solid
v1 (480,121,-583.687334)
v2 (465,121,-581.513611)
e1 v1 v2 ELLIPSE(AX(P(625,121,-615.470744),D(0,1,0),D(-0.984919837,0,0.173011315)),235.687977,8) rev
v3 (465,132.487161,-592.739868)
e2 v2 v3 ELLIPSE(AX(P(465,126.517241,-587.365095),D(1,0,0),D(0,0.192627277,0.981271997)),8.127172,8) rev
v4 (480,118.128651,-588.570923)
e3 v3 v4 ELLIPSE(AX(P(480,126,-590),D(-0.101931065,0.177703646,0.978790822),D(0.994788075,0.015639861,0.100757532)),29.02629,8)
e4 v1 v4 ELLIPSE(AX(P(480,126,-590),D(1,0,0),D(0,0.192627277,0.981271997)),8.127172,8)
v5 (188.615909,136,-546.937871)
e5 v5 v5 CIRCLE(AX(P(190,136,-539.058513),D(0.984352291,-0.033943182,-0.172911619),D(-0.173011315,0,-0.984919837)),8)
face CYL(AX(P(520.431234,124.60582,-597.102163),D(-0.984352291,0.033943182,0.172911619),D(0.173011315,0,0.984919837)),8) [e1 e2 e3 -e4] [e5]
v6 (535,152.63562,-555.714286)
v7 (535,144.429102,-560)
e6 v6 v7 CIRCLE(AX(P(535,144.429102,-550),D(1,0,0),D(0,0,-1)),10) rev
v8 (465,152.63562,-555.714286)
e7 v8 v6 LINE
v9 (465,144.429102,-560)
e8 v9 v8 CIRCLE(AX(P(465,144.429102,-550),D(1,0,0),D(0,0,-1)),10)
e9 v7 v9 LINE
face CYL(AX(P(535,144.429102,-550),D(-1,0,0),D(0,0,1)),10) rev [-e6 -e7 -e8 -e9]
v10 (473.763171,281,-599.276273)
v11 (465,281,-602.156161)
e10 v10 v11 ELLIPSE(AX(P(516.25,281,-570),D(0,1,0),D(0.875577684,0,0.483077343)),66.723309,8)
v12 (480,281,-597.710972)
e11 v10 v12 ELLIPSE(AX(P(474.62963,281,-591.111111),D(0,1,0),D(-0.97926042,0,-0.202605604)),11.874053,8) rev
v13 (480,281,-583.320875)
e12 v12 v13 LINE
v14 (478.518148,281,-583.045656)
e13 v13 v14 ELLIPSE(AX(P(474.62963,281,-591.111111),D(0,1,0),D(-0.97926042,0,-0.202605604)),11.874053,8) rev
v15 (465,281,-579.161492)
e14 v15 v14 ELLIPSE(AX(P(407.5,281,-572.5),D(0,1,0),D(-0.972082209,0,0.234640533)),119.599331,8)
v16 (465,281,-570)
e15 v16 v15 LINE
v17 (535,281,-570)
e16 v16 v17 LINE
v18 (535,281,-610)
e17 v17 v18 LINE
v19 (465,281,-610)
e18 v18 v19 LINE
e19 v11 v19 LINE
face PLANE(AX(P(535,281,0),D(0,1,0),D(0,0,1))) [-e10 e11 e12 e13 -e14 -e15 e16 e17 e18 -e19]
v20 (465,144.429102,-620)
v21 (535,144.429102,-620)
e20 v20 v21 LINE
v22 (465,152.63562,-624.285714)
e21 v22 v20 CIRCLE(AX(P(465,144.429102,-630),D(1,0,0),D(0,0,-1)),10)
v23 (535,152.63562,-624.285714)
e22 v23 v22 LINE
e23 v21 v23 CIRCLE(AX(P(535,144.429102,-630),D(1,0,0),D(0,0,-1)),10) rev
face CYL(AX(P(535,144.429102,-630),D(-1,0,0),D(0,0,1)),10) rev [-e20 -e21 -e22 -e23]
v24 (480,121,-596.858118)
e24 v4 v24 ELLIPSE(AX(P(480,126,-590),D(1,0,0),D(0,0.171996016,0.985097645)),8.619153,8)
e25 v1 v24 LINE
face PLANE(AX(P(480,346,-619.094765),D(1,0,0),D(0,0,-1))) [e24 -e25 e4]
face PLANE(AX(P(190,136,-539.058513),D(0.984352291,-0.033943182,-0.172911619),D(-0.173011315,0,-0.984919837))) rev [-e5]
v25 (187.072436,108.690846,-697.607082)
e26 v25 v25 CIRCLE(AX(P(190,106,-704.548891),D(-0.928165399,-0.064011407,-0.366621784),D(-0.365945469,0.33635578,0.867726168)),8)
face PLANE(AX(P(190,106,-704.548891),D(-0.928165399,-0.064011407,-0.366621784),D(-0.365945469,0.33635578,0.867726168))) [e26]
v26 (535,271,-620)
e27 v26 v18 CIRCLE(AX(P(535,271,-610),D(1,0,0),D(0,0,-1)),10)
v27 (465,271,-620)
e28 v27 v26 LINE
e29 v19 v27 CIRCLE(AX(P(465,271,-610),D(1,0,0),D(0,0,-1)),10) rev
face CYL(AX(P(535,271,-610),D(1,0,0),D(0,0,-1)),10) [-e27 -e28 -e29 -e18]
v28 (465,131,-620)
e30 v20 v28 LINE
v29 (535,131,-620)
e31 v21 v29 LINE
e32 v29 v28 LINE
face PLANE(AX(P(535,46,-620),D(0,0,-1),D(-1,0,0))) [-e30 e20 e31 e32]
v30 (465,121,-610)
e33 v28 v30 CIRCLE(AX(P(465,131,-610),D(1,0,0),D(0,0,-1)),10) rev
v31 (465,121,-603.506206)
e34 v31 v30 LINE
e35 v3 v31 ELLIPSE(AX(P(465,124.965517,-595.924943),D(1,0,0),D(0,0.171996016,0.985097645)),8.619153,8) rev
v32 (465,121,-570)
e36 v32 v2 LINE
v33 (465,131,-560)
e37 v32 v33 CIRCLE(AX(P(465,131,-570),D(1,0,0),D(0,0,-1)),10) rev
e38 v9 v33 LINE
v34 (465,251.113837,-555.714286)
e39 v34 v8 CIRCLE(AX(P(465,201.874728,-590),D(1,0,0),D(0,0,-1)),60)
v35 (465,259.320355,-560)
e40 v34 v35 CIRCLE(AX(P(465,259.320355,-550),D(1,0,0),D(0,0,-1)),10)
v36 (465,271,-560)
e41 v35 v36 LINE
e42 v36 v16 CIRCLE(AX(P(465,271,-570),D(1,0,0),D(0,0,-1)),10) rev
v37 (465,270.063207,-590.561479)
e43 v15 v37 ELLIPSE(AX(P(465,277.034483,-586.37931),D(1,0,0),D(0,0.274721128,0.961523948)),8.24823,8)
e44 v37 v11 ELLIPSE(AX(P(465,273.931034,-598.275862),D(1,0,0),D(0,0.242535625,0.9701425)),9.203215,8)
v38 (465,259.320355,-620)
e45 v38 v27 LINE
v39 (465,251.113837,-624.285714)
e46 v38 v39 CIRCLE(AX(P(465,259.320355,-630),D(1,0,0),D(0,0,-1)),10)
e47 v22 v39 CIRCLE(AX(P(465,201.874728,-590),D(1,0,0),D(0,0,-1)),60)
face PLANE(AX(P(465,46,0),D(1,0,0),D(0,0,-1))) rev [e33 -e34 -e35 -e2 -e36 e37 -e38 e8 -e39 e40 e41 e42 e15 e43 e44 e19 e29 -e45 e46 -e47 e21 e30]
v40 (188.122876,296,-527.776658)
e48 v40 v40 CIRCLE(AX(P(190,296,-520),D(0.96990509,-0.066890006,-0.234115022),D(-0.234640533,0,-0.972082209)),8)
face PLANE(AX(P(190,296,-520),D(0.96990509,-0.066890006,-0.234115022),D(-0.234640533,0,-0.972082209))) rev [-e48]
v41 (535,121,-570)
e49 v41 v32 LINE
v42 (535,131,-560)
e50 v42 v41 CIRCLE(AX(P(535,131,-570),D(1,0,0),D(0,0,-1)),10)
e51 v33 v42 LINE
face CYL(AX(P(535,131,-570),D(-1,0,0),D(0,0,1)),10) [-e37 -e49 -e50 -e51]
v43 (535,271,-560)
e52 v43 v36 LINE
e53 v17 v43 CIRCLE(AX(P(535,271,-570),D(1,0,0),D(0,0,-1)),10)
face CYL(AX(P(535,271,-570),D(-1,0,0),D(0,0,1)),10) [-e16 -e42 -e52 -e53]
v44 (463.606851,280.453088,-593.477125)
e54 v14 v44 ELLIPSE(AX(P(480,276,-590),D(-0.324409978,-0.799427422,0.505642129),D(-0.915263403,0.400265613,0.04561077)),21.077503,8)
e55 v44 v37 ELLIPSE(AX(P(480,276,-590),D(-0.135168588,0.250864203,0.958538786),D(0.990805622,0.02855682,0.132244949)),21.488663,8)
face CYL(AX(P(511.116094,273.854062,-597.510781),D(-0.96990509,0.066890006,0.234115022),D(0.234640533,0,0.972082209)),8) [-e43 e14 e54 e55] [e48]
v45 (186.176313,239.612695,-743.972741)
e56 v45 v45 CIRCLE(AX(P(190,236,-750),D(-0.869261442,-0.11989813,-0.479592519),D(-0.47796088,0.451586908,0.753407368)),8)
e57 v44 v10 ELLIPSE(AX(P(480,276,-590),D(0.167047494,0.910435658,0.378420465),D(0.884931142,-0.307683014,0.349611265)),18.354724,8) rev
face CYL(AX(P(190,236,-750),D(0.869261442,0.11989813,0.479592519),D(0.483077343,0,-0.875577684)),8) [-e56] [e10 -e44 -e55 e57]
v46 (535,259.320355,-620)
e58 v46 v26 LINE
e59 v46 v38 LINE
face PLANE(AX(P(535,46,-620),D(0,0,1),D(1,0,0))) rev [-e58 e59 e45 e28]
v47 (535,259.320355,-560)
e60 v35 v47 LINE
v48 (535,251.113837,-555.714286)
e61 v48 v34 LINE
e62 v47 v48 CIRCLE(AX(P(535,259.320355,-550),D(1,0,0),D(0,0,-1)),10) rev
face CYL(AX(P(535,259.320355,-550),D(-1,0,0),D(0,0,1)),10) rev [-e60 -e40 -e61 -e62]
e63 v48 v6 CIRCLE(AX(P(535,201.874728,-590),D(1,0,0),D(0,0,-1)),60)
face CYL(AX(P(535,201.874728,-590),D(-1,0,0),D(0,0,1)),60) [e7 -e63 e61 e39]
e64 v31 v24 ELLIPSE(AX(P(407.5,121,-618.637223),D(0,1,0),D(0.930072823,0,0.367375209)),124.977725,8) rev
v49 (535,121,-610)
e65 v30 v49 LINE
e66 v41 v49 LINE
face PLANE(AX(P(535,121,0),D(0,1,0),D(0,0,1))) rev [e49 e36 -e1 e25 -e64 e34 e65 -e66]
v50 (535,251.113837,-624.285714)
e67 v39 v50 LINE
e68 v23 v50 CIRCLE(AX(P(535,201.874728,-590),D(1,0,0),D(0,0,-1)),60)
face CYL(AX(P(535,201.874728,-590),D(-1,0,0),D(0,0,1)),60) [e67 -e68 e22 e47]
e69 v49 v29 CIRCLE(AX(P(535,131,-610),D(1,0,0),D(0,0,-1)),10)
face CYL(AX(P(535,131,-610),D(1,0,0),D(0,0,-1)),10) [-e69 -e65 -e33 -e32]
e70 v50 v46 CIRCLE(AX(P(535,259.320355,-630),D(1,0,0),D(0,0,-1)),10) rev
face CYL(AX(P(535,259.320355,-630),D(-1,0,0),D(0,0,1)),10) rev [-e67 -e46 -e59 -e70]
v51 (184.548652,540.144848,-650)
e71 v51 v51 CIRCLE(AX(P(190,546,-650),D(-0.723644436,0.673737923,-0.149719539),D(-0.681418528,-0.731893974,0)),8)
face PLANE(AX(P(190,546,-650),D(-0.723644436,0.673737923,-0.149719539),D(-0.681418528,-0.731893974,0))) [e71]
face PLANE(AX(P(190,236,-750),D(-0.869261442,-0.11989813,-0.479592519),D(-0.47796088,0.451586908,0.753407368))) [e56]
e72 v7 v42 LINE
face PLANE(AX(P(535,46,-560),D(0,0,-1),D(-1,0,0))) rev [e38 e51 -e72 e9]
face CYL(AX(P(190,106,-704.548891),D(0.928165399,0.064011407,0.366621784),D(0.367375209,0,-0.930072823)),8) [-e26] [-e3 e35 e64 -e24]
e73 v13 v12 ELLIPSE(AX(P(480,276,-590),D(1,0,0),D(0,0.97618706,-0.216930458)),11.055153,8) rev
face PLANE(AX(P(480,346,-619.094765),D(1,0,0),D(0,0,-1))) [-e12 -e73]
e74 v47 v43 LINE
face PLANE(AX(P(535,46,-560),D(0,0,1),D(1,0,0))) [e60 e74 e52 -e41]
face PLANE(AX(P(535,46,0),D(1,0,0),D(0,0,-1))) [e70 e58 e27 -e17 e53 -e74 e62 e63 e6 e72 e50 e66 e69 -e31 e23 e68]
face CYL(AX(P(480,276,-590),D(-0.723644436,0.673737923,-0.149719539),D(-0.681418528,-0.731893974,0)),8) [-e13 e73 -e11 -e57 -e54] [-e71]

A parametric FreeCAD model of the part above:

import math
import FreeCAD as App
import Part
import Sketcher


def edges_at(feature, points):
    """Names of the edges that pass closest to the given points."""
    edges = feature.Shape.Edges
    near = lambda p: min(range(len(edges)), key=lambda i: edges[i].distToShape(Part.Vertex(*p))[0])
    return sorted({f"Edge{near(p) + 1}" for p in points})


def add_polygon(sketch, points):
    """Adds a closed chain of lines whose ends are joined by coincident constraints."""
    first, n = sketch.GeometryCount, len(points)
    for a, b in zip(points, points[1:] + points[:1]):
        sketch.addGeometry(Part.LineSegment(App.Vector(*a, 0), App.Vector(*b, 0)), False)
    for i in range(n):
        sketch.addConstraint(Sketcher.Constraint("Coincident", first + i, 2, first + (i + 1) % n, 1))

doc = App.newDocument("Part")
params = doc.addObject("Spreadsheet::Sheet", "Params")
for row, (alias, value) in enumerate([
    ("sketch1_diameter", "16 mm"),
    ("sketch3_diameter", "16 mm"),
    ("sketch5_diameter", "16 mm"),
    ("sketch7_width", "50 mm"),
    ("pad1_length", "300 mm"),
    ("sketch8_radius", "60 mm"),
    ("sketch8_height", "60 mm"),
    ("pad2_length", "70 mm"),
    ("fillet_radius", "10 mm"),
], start=1):
    params.set(f"A{row}", alias)
    params.set(f"B{row}", "=" + value)
    params.setAlias(f"B{row}", alias)

body = doc.addObject("PartDesign::Body", "Body")

sketch1 = body.newObject("Sketcher::SketchObject", "Sketch")
sketch1.Placement = App.Placement(App.Vector(190, 250, -520), App.Rotation(App.Vector(0.234640533, 0, 0.972082209), App.Vector(-0.065022585, -0.997760356, 0.015695107), App.Vector(0.96990509, -0.066890006, -0.234115022), "ZXY"))
sketch1.addGeometry(Part.Circle(App.Vector(0, 0, 0), App.Vector(0, 0, 1), 8), False)
sketch1.addConstraint([
    Sketcher.Constraint("Coincident", 0, 3, -1, 1),
    Sketcher.Constraint("Diameter", 0, 16.0),
])
sketch1.setExpression("Constraints[1]", "Params.sketch1_diameter")

sketch2 = body.newObject("Sketcher::SketchObject", "Sketch001")
sketch2.Placement = App.Placement(App.Vector(2.17172, 362.134281, -94.469813), App.Rotation(App.Vector(0, -0.252421897, -0.967617272), App.Vector(0.999983164, -0.005614798, 0.00146473), App.Vector(-0.005802705, -0.967600982, 0.252417647), "ZXY"))
sketch2.addGeometry([
    Part.LineSegment(App.Vector(440.055507, 187.831442, 0), App.Vector(512.837154, 477.836325, 0)),
    Part.LineSegment(App.Vector(512.837154, 477.836325, 0), App.Vector(677.752793, 187.831442, 0)),
], False)
sketch2.addConstraint([
    Sketcher.Constraint("Coincident", 0, 2, 1, 1),
    Sketcher.Constraint("Horizontal", 0, 1, 1, 2),
    Sketcher.Constraint("DistanceX", 0, 2, 1, 2, 164.915639),
    Sketcher.Constraint("Distance", 0, 298.998328),
    Sketcher.Constraint("Distance", 1, 333.616546),
    Sketcher.Constraint("DistanceX", -1, 1, 0, 1, 440.055507),
    Sketcher.Constraint("DistanceY", -1, 1, 0, 1, 187.831442),
])
doc.recompute()

additivepipe = body.newObject("PartDesign::AdditivePipe", "AdditivePipe")
additivepipe.Profile = sketch1
additivepipe.Spine = (sketch2, ["Edge1", "Edge2"])
additivepipe.Transition = "Right corner"

sketch3 = body.newObject("Sketcher::SketchObject", "Sketch002")
sketch3.Placement = App.Placement(App.Vector(480, 230, -590), App.Rotation(App.Vector(-0.681418528, -0.731893974, 0), App.Vector(-0.109578828, 0.102021668, 0.988728506), App.Vector(-0.723644436, 0.673737923, -0.149719539), "ZXY"))
sketch3.addGeometry(Part.Circle(App.Vector(0, 0, 0), App.Vector(0, 0, 1), 8), False)
sketch3.addConstraint([
    Sketcher.Constraint("Coincident", 0, 3, -1, 1),
    Sketcher.Constraint("Diameter", 0, 16.0),
])
sketch3.setExpression("Constraints[1]", "Params.sketch3_diameter")

sketch4 = body.newObject("Sketcher::SketchObject", "Sketch003")
sketch4.Placement = App.Placement(App.Vector(337.585987, 362.592357, 0), App.Rotation(App.Vector(-0.731893974, 0.681418528, 0), App.Vector(0, 0, 0.999999999), App.Vector(0.681418528, 0.731893974, 0), "ZXY"))
sketch4.addGeometry(Part.LineSegment(App.Vector(-194.582846, -589.999999, 0), App.Vector(201.649409, -649.999999, 0)), False)
sketch4.addConstraint([
    Sketcher.Constraint("DistanceY", 0, 1, -1, 1, 589.999999),
    Sketcher.Constraint("DistanceY", 0, 2, -1, 1, 649.999999),
    Sketcher.Constraint("DistanceX", -1, 1, 0, 2, 201.649409),
    Sketcher.Constraint("Distance", 0, 400.749298),
])
doc.recompute()

additivepipe2 = body.newObject("PartDesign::AdditivePipe", "AdditivePipe001")
additivepipe2.Profile = sketch3
additivepipe2.Spine = (sketch4, ["Edge1"])
body2 = doc.addObject("PartDesign::Body", "Body001")

sketch5 = body2.newObject("Sketcher::SketchObject", "Sketch004")
sketch5.Placement = App.Placement(App.Vector(190, 60, -704.548891), App.Rotation(App.Vector(-0.367375209, 0, 0.930072823), App.Vector(0.05953527, -0.997949167, 0.023516204), App.Vector(0.928165399, 0.064011407, 0.366621784), "ZXY"))
sketch5.addGeometry(Part.Circle(App.Vector(0, 0, 0), App.Vector(0, 0, 1), 8), False)
sketch5.addConstraint([
    Sketcher.Constraint("Coincident", 0, 3, -1, 1),
    Sketcher.Constraint("Diameter", 0, 16.0),
])
sketch5.setExpression("Constraints[1]", "Params.sketch5_diameter")

sketch6 = body2.newObject("Sketcher::SketchObject", "Sketch005")
sketch6.Placement = App.Placement(App.Vector(0.480939, 182.231842, -33.034883), App.Rotation(App.Vector(0, -0.178372257, -0.983963078), App.Vector(0.999996629, -0.002555183, 0.000463202), App.Vector(-0.002596828, -0.98395976, 0.178371656), "ZXY"))
sketch6.addGeometry([
    Part.LineSegment(App.Vector(682.54776, 189.5197, 0), App.Vector(566.268436, 479.520678, 0)),
    Part.LineSegment(App.Vector(566.268436, 479.520678, 0), App.Vector(514.360171, 189.5197, 0)),
], False)
sketch6.addConstraint([
    Sketcher.Constraint("Coincident", 0, 2, 1, 1),
    Sketcher.Constraint("Horizontal", 0, 1, 1, 2),
    Sketcher.Constraint("DistanceY", -1, 1, 0, 1, 189.5197),
    Sketcher.Constraint("Distance", 1, 294.609972),
    Sketcher.Constraint("DistanceX", -1, 1, 0, 1, 682.54776),
    Sketcher.Constraint("DistanceY", -1, 1, 0, 2, 479.520678),
    Sketcher.Constraint("DistanceX", -1, 1, 1, 2, 514.360171),
])
doc.recompute()

additivepipe3 = body2.newObject("PartDesign::AdditivePipe", "AdditivePipe002")
additivepipe3.Profile = sketch5
additivepipe3.Spine = (sketch6, ["Edge1", "Edge2"])
additivepipe3.Transition = "Right corner"
body3 = doc.addObject("PartDesign::Body", "Body002")

sketch7 = body3.newObject("Sketcher::SketchObject", "Sketch006")
sketch7.AttachmentSupport = (doc.getObject("XZ_Plane002"), [""])
sketch7.MapMode = "FlatFace"
add_polygon(sketch7, [(480, -619.094765), (480, -561.245256), (530, -561.245256), (530, -619.094765)])
sketch7.addConstraint([
    Sketcher.Constraint("Vertical", 0),
    Sketcher.Constraint("Horizontal", 1),
    Sketcher.Constraint("Vertical", 2),
    Sketcher.Constraint("Horizontal", 3),
    Sketcher.Constraint("DistanceX", 1, 1, 1, 2, 50.0),
    Sketcher.Constraint("DistanceX", -1, 1, 0, 2, 480.0),
    Sketcher.Constraint("DistanceY", 0, 1, 0, 2, 57.84951),
    Sketcher.Constraint("DistanceY", 0, 2, -1, 1, 561.245256),
])
sketch7.setExpression("Constraints[8]", "Params.sketch7_width")
pad1 = body3.newObject("PartDesign::Pad", "Pad")
pad1.Profile = sketch7
pad1.setExpression("Length", "Params.pad1_length")
pad1.Reversed = True
doc.recompute()

body4 = doc.addObject("PartDesign::Body", "Body003")
body4.BaseFeature = body3
boolean = body.newObject("PartDesign::Boolean", "Boolean")
boolean.Type = "Cut"
boolean.addObjects([body4])
doc.recompute()

sketch8 = body.newObject("Sketcher::SketchObject", "Sketch007")
sketch8.AttachmentSupport = (doc.getObject("YZ_Plane"), [""])
sketch8.MapMode = "FlatFace"
sketch8.AttachmentOffset = App.Placement(App.Vector(0, 0, 465), App.Rotation())
sketch8.addGeometry([
    Part.LineSegment(App.Vector(207.836253, -620, 0), App.Vector(235, -620, 0)),
    Part.LineSegment(App.Vector(235, -620, 0), App.Vector(235, -560, 0)),
    Part.LineSegment(App.Vector(235, -560, 0), App.Vector(207.836253, -560, 0)),
    Part.ArcOfCircle(Part.Circle(App.Vector(155.874728, -590, 0), App.Vector(0, 0, 1), 60), math.radians(30), math.radians(150)),
    Part.LineSegment(App.Vector(103.913204, -560, 0), App.Vector(75, -560, 0)),
    Part.LineSegment(App.Vector(75, -560, 0), App.Vector(75, -620, 0)),
    Part.LineSegment(App.Vector(75, -620, 0), App.Vector(103.913204, -620, 0)),
    Part.ArcOfCircle(Part.Circle(App.Vector(155.874728, -590, 0), App.Vector(0, 0, 1), 60), math.radians(-150), math.radians(-30)),
], False)
sketch8.addConstraint([
    Sketcher.Constraint("Coincident", 0, 2, 1, 1),
    Sketcher.Constraint("Coincident", 1, 2, 2, 1),
    Sketcher.Constraint("Coincident", 2, 2, 3, 1),
    Sketcher.Constraint("Coincident", 3, 2, 4, 1),
    Sketcher.Constraint("Coincident", 4, 2, 5, 1),
    Sketcher.Constraint("Coincident", 5, 2, 6, 1),
    Sketcher.Constraint("Coincident", 6, 2, 7, 1),
    Sketcher.Constraint("Coincident", 7, 2, 0, 1),
    Sketcher.Constraint("Horizontal", 0),
    Sketcher.Constraint("Vertical", 1),
    Sketcher.Constraint("Horizontal", 2),
    Sketcher.Constraint("Horizontal", 4),
    Sketcher.Constraint("Vertical", 5),
    Sketcher.Constraint("Horizontal", 6),
    Sketcher.Constraint("Coincident", 7, 3, 3, 3),
    Sketcher.Constraint("Equal", 3, 7),
    Sketcher.Constraint("Horizontal", 2, 2, 3, 2),
    Sketcher.Constraint("Horizontal", 0, 2, 5, 2),
    Sketcher.Constraint("Vertical", 3, 2, 6, 2),
    Sketcher.Constraint("Radius", 3, 60.0),
    Sketcher.Constraint("DistanceY", 1, 1, 1, 2, 60.0),
    Sketcher.Constraint("DistanceY", 3, 3, -1, 1, 590.0),
    Sketcher.Constraint("DistanceX", -1, 1, 0, 2, 235.0),
    Sketcher.Constraint("DistanceX", -1, 1, 4, 2, 75.0),
    Sketcher.Constraint("DistanceX", 0, 1, 0, 2, 27.163747),
])
sketch8.setExpression("Constraints[19]", "Params.sketch8_radius")
sketch8.setExpression("Constraints[20]", "Params.sketch8_height")
pad2 = body.newObject("PartDesign::Pad", "Pad001")
pad2.Profile = sketch8
pad2.setExpression("Length", "Params.pad2_length")
doc.recompute()

fillet = body.newObject("PartDesign::Fillet", "Fillet")
fillet.Base = (pad2, edges_at(pad2, [
    (500, 235, -620),
    (500, 103.913, -620),
    (500, 207.836, -620),
    (500, 235, -560),
    (500, 207.836, -560),
    (500, 103.913, -560),
    (500, 75, -560),
    (500, 75, -620),
]))
fillet.setExpression("Radius", "Params.fillet_radius")
doc.recompute()

boolean2 = body2.newObject("PartDesign::Boolean", "Boolean001")
boolean2.Type = "Cut"
boolean2.addObjects([body3])
doc.recompute()

boolean3 = body.newObject("PartDesign::Boolean", "Boolean002")
boolean3.Type = "Fuse"
boolean3.addObjects([body2])
body5 = doc.addObject("PartDesign::Body", "Body004")
doc.recompute()

body.Placement = App.Placement(App.Vector(0, 46, 0), App.Rotation(App.Vector(0, 0, 1), 0))
boolean4 = body5.newObject("PartDesign::Boolean", "Boolean003")
boolean4.Type = "Fuse"
boolean4.addObjects([body])

doc.recompute()
